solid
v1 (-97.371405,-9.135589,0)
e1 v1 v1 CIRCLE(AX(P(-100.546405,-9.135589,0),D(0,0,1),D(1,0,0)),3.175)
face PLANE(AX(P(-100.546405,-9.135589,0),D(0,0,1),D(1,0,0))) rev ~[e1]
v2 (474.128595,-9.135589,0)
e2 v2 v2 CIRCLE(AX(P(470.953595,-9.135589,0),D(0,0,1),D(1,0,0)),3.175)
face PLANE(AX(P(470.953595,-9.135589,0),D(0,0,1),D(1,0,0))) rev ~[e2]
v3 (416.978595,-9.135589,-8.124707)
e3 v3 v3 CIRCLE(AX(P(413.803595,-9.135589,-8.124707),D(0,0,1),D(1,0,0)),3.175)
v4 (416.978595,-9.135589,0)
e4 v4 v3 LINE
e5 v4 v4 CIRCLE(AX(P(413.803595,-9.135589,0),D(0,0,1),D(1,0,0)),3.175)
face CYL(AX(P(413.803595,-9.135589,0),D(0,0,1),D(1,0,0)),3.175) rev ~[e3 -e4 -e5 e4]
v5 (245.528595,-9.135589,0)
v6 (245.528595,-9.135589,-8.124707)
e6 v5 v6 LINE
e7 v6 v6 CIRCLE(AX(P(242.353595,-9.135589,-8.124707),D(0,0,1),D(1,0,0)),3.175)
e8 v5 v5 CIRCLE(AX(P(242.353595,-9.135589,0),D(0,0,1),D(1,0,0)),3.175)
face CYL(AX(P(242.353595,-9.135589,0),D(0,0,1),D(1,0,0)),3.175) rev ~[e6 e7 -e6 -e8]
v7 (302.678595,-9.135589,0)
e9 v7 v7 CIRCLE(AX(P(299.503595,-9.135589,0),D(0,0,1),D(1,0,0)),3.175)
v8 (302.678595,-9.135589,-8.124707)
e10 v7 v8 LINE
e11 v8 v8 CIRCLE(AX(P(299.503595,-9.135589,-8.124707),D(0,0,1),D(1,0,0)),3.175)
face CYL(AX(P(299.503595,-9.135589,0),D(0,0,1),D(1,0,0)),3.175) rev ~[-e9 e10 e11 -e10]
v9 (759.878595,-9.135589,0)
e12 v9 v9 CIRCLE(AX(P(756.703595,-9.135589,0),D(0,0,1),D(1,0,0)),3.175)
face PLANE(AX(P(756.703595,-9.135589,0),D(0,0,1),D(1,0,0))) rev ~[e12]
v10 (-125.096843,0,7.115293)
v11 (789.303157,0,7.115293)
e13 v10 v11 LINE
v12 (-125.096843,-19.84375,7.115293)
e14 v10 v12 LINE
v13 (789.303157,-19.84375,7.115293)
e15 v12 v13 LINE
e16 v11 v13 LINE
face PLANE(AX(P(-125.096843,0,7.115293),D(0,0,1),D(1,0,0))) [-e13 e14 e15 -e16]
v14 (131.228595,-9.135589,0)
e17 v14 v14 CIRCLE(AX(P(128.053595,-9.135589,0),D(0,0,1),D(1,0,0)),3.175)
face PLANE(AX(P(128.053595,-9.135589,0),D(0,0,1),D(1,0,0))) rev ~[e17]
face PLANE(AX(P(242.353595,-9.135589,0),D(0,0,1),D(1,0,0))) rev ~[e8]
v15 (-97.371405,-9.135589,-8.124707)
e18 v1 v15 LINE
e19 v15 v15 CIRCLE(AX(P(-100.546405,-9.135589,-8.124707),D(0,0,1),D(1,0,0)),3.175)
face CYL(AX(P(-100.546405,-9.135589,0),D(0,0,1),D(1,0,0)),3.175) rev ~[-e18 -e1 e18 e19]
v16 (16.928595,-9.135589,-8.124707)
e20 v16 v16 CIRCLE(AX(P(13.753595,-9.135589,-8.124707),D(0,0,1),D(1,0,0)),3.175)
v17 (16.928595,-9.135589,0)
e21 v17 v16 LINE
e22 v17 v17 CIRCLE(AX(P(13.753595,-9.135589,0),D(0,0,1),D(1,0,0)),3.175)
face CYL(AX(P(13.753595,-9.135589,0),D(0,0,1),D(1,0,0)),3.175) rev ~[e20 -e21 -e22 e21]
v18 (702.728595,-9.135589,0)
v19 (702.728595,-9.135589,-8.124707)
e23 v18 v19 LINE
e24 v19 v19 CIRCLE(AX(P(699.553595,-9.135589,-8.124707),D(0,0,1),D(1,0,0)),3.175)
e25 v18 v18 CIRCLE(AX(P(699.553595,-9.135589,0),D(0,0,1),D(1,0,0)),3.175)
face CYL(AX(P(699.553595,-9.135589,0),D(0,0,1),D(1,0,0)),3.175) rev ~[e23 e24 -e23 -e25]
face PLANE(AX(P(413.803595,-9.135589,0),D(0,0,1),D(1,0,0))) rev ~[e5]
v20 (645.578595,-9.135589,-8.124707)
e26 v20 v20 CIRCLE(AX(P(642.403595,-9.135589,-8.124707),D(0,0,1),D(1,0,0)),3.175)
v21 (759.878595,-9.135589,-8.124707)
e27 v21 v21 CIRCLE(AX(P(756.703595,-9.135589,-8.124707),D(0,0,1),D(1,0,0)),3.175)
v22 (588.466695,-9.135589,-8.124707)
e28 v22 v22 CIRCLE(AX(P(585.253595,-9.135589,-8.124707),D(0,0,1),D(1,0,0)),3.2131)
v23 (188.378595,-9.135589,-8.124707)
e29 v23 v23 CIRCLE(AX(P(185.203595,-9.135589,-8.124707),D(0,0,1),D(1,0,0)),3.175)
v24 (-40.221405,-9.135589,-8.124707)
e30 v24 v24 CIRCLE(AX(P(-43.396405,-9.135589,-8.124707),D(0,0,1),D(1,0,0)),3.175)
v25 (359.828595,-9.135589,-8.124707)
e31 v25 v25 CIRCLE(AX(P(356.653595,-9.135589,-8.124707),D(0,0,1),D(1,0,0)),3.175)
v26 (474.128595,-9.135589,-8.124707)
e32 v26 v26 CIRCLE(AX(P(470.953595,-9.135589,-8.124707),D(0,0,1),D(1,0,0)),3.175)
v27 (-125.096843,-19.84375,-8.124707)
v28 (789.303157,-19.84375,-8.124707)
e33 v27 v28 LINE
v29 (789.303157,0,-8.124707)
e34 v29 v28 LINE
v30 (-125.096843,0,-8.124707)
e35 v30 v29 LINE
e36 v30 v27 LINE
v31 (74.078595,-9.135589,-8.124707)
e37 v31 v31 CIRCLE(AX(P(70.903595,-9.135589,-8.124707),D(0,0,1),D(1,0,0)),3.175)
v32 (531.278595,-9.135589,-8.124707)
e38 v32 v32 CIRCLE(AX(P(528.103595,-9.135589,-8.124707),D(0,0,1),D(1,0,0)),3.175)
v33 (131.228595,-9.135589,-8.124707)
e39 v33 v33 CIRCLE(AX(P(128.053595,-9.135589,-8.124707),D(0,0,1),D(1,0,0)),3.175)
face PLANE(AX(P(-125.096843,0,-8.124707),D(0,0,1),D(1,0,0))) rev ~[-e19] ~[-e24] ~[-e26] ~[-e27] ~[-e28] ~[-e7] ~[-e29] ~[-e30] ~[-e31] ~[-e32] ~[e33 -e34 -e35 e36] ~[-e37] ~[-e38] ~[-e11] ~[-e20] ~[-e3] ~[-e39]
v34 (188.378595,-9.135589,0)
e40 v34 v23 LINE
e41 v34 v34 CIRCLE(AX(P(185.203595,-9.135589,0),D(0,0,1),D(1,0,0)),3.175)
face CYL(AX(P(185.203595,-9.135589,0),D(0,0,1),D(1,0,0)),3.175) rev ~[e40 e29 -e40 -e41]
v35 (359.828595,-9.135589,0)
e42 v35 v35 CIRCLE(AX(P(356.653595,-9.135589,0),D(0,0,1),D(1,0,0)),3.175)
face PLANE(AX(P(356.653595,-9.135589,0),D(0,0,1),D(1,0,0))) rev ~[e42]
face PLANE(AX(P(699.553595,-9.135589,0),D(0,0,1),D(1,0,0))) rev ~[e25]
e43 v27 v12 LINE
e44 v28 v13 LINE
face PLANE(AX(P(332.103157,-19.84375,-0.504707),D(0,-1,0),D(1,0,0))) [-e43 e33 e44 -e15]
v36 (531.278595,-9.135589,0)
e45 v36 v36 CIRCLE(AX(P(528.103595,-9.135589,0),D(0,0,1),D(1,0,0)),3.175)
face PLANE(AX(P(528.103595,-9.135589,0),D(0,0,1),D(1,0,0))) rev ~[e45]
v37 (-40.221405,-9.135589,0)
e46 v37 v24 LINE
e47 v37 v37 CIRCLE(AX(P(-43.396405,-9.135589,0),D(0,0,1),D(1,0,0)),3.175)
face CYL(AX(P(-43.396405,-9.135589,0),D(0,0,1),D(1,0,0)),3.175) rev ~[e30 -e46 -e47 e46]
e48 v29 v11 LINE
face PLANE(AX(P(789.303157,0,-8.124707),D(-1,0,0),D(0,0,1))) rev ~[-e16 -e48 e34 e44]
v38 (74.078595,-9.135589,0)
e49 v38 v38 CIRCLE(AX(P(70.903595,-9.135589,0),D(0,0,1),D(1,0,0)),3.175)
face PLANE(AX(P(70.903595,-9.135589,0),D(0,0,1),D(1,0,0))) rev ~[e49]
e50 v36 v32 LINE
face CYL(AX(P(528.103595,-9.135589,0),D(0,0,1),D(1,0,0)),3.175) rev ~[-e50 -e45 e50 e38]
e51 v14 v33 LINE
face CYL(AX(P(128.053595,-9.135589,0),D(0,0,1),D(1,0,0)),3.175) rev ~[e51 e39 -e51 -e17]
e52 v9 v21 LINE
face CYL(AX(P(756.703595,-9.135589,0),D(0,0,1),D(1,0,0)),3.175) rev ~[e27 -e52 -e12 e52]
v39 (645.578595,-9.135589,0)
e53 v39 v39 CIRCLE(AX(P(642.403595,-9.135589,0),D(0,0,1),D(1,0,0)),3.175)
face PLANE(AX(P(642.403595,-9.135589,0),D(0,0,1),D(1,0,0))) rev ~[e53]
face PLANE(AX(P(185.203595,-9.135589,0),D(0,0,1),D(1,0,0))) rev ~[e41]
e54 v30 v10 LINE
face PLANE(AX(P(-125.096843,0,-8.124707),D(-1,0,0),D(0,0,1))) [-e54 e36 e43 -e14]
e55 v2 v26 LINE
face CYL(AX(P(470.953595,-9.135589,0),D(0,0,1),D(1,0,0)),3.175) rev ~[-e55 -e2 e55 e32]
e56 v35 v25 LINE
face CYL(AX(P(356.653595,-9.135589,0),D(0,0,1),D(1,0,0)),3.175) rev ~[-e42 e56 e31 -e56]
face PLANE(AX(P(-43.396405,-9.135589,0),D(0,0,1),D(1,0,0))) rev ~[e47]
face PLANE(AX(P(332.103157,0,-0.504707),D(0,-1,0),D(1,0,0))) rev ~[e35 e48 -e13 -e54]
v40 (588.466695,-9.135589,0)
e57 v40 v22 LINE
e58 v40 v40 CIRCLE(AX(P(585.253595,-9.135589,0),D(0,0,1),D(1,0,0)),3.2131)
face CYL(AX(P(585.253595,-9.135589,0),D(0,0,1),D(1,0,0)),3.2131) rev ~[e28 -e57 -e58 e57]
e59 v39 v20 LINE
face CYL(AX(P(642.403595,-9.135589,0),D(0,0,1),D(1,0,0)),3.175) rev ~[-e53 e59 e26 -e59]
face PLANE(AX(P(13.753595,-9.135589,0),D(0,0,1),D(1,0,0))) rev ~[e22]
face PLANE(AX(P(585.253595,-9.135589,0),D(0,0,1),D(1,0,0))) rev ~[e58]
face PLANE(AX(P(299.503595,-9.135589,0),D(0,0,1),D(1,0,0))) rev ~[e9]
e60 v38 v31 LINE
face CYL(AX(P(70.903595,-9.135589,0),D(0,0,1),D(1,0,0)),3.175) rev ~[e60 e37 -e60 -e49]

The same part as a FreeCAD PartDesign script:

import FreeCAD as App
import Part
import Sketcher
Q = App.Units.Quantity


def add_polygon(sketch, points):
    """Adds a closed chain of lines whose ends are joined by coincident constraints."""
    first, n = sketch.GeometryCount, len(points)
    for a, b in zip(points, points[1:] + points[:1]):
        sketch.addGeometry(Part.LineSegment(App.Vector(*a, 0), App.Vector(*b, 0)), False)
    for i in range(n):
        sketch.addConstraint(Sketcher.Constraint("Coincident", first + i, 2, first + (i + 1) % n, 1))

doc = App.newDocument("Part")
params = doc.addObject("Spreadsheet::Sheet", "Params")
for row, (alias, value) in enumerate([
    ("sketch1_width", "36 in"),
    ("sketch1_height", "0.6 in"),
    ("pad1_length", "0.78125 in"),
    ("sketch2_diameter", "0.25 in"),
    ("sketch2_diameter2", "0.253 in"),
], start=1):
    params.set(f"A{row}", alias)
    params.set(f"B{row}", "=" + value)
    params.setAlias(f"B{row}", alias)

body = doc.addObject("PartDesign::Body", "Body")

sketch1 = body.newObject("Sketcher::SketchObject", "Sketch")
sketch1.AttachmentSupport = (doc.getObject("XZ_Plane"), [""])
sketch1.MapMode = "FlatFace"
add_polygon(sketch1, [(-125.096843, 7.115293), (-125.096843, -8.124707), (789.303157, -8.124707), (789.303157, 7.115293)])
sketch1.addConstraint([
    Sketcher.Constraint("Vertical", 0),
    Sketcher.Constraint("Horizontal", 1),
    Sketcher.Constraint("Vertical", 2),
    Sketcher.Constraint("Horizontal", 3),
    Sketcher.Constraint("DistanceX", 1, 1, 1, 2, Q("36 in")),
    Sketcher.Constraint("DistanceY", 0, 2, 0, 1, Q("0.6 in")),
    Sketcher.Constraint("DistanceX", 0, 2, -1, 1, Q("125.096843 mm")),
    Sketcher.Constraint("DistanceY", 0, 2, -1, 1, Q("8.124707 mm")),
])
sketch1.setExpression("Constraints[8]", "Params.sketch1_width")
sketch1.setExpression("Constraints[9]", "Params.sketch1_height")
pad1 = body.newObject("PartDesign::Pad", "Pad")
pad1.Profile = sketch1
pad1.setExpression("Length", "Params.pad1_length")

sketch2 = body.newObject("Sketcher::SketchObject", "Sketch001")
sketch2.AttachmentSupport = (doc.getObject("XY_Plane"), [""])
sketch2.MapMode = "FlatFace"
sketch2.addGeometry([
    Part.Circle(App.Vector(756.703595, -9.135589, 0), App.Vector(0, 0, 1), 3.175),
    Part.Circle(App.Vector(699.553595, -9.135589, 0), App.Vector(0, 0, 1), 3.175),
    Part.Circle(App.Vector(642.403595, -9.135589, 0), App.Vector(0, 0, 1), 3.175),
    Part.Circle(App.Vector(585.253595, -9.135589, 0), App.Vector(0, 0, 1), 3.2131),
    Part.Circle(App.Vector(528.103595, -9.135589, 0), App.Vector(0, 0, 1), 3.175),
    Part.Circle(App.Vector(470.953595, -9.135589, 0), App.Vector(0, 0, 1), 3.175),
    Part.Circle(App.Vector(413.803595, -9.135589, 0), App.Vector(0, 0, 1), 3.175),
    Part.Circle(App.Vector(356.653595, -9.135589, 0), App.Vector(0, 0, 1), 3.175),
    Part.Circle(App.Vector(299.503595, -9.135589, 0), App.Vector(0, 0, 1), 3.175),
    Part.Circle(App.Vector(242.353595, -9.135589, 0), App.Vector(0, 0, 1), 3.175),
    Part.Circle(App.Vector(185.203595, -9.135589, 0), App.Vector(0, 0, 1), 3.175),
    Part.Circle(App.Vector(128.053595, -9.135589, 0), App.Vector(0, 0, 1), 3.175),
    Part.Circle(App.Vector(70.903595, -9.135589, 0), App.Vector(0, 0, 1), 3.175),
    Part.Circle(App.Vector(13.753595, -9.135589, 0), App.Vector(0, 0, 1), 3.175),
    Part.Circle(App.Vector(-43.396405, -9.135589, 0), App.Vector(0, 0, 1), 3.175),
    Part.Circle(App.Vector(-100.546405, -9.135589, 0), App.Vector(0, 0, 1), 3.175),
], False)
sketch2.addConstraint([
    Sketcher.Constraint("Equal", 0, 1),
    Sketcher.Constraint("Equal", 1, 2),
    Sketcher.Constraint("Equal", 2, 4),
    Sketcher.Constraint("Equal", 4, 5),
    Sketcher.Constraint("Equal", 5, 6),
    Sketcher.Constraint("Equal", 6, 7),
    Sketcher.Constraint("Equal", 7, 8),
    Sketcher.Constraint("Equal", 8, 9),
    Sketcher.Constraint("Equal", 9, 10),
    Sketcher.Constraint("Equal", 10, 11),
    Sketcher.Constraint("Equal", 11, 12),
    Sketcher.Constraint("Equal", 12, 13),
    Sketcher.Constraint("Equal", 13, 14),
    Sketcher.Constraint("Equal", 14, 15),
    Sketcher.Constraint("Horizontal", 0, 3, 1, 3),
    Sketcher.Constraint("Horizontal", 1, 3, 2, 3),
    Sketcher.Constraint("Horizontal", 2, 3, 3, 3),
    Sketcher.Constraint("Horizontal", 3, 3, 4, 3),
    Sketcher.Constraint("Horizontal", 4, 3, 5, 3),
    Sketcher.Constraint("Horizontal", 5, 3, 6, 3),
    Sketcher.Constraint("Horizontal", 6, 3, 7, 3),
    Sketcher.Constraint("Horizontal", 7, 3, 8, 3),
    Sketcher.Constraint("Horizontal", 8, 3, 9, 3),
    Sketcher.Constraint("Horizontal", 9, 3, 10, 3),
    Sketcher.Constraint("Horizontal", 10, 3, 11, 3),
    Sketcher.Constraint("Horizontal", 11, 3, 12, 3),
    Sketcher.Constraint("Horizontal", 12, 3, 13, 3),
    Sketcher.Constraint("Horizontal", 13, 3, 14, 3),
    Sketcher.Constraint("Horizontal", 14, 3, 15, 3),
    Sketcher.Constraint("Diameter", 0, Q("0.25 in")),
    Sketcher.Constraint("Diameter", 3, Q("0.253 in")),
    Sketcher.Constraint("DistanceX", 4, 3, 0, 3, Q("9 in")),
    Sketcher.Constraint("DistanceX", 5, 3, 1, 3, Q("9 in")),
    Sketcher.Constraint("DistanceX", 6, 3, 2, 3, Q("9 in")),
    Sketcher.Constraint("DistanceX", 7, 3, 3, 3, Q("9 in")),
    Sketcher.Constraint("DistanceX", 8, 3, 4, 3, Q("9 in")),
    Sketcher.Constraint("DistanceX", 9, 3, 5, 3, Q("9 in")),
    Sketcher.Constraint("DistanceX", 10, 3, 6, 3, Q("9 in")),
    Sketcher.Constraint("DistanceX", 11, 3, 7, 3, Q("9 in")),
    Sketcher.Constraint("DistanceX", 12, 3, 8, 3, Q("9 in")),
    Sketcher.Constraint("DistanceX", 13, 3, 9, 3, Q("9 in")),
    Sketcher.Constraint("DistanceX", 14, 3, 10, 3, Q("9 in")),
    Sketcher.Constraint("DistanceX", 15, 3, 11, 3, Q("9 in")),
    Sketcher.Constraint("DistanceX", 2, 3, 0, 3, Q("4.5 in")),
    Sketcher.Constraint("DistanceX", 3, 3, 1, 3, Q("4.5 in")),
    Sketcher.Constraint("DistanceX", 1, 3, 0, 3, Q("2.25 in")),
    Sketcher.Constraint("DistanceY", 0, 3, -1, 1, Q("9.135589 mm")),
    Sketcher.Constraint("DistanceX", -1, 1, 0, 3, Q("756.703595 mm")),
])
sketch2.setExpression("Constraints[29]", "Params.sketch2_diameter")
sketch2.setExpression("Constraints[30]", "Params.sketch2_diameter2")
pocket1 = body.newObject("PartDesign::Pocket", "Pocket")
pocket1.Profile = sketch2
pocket1.Type = "ThroughAll"

doc.recompute()
